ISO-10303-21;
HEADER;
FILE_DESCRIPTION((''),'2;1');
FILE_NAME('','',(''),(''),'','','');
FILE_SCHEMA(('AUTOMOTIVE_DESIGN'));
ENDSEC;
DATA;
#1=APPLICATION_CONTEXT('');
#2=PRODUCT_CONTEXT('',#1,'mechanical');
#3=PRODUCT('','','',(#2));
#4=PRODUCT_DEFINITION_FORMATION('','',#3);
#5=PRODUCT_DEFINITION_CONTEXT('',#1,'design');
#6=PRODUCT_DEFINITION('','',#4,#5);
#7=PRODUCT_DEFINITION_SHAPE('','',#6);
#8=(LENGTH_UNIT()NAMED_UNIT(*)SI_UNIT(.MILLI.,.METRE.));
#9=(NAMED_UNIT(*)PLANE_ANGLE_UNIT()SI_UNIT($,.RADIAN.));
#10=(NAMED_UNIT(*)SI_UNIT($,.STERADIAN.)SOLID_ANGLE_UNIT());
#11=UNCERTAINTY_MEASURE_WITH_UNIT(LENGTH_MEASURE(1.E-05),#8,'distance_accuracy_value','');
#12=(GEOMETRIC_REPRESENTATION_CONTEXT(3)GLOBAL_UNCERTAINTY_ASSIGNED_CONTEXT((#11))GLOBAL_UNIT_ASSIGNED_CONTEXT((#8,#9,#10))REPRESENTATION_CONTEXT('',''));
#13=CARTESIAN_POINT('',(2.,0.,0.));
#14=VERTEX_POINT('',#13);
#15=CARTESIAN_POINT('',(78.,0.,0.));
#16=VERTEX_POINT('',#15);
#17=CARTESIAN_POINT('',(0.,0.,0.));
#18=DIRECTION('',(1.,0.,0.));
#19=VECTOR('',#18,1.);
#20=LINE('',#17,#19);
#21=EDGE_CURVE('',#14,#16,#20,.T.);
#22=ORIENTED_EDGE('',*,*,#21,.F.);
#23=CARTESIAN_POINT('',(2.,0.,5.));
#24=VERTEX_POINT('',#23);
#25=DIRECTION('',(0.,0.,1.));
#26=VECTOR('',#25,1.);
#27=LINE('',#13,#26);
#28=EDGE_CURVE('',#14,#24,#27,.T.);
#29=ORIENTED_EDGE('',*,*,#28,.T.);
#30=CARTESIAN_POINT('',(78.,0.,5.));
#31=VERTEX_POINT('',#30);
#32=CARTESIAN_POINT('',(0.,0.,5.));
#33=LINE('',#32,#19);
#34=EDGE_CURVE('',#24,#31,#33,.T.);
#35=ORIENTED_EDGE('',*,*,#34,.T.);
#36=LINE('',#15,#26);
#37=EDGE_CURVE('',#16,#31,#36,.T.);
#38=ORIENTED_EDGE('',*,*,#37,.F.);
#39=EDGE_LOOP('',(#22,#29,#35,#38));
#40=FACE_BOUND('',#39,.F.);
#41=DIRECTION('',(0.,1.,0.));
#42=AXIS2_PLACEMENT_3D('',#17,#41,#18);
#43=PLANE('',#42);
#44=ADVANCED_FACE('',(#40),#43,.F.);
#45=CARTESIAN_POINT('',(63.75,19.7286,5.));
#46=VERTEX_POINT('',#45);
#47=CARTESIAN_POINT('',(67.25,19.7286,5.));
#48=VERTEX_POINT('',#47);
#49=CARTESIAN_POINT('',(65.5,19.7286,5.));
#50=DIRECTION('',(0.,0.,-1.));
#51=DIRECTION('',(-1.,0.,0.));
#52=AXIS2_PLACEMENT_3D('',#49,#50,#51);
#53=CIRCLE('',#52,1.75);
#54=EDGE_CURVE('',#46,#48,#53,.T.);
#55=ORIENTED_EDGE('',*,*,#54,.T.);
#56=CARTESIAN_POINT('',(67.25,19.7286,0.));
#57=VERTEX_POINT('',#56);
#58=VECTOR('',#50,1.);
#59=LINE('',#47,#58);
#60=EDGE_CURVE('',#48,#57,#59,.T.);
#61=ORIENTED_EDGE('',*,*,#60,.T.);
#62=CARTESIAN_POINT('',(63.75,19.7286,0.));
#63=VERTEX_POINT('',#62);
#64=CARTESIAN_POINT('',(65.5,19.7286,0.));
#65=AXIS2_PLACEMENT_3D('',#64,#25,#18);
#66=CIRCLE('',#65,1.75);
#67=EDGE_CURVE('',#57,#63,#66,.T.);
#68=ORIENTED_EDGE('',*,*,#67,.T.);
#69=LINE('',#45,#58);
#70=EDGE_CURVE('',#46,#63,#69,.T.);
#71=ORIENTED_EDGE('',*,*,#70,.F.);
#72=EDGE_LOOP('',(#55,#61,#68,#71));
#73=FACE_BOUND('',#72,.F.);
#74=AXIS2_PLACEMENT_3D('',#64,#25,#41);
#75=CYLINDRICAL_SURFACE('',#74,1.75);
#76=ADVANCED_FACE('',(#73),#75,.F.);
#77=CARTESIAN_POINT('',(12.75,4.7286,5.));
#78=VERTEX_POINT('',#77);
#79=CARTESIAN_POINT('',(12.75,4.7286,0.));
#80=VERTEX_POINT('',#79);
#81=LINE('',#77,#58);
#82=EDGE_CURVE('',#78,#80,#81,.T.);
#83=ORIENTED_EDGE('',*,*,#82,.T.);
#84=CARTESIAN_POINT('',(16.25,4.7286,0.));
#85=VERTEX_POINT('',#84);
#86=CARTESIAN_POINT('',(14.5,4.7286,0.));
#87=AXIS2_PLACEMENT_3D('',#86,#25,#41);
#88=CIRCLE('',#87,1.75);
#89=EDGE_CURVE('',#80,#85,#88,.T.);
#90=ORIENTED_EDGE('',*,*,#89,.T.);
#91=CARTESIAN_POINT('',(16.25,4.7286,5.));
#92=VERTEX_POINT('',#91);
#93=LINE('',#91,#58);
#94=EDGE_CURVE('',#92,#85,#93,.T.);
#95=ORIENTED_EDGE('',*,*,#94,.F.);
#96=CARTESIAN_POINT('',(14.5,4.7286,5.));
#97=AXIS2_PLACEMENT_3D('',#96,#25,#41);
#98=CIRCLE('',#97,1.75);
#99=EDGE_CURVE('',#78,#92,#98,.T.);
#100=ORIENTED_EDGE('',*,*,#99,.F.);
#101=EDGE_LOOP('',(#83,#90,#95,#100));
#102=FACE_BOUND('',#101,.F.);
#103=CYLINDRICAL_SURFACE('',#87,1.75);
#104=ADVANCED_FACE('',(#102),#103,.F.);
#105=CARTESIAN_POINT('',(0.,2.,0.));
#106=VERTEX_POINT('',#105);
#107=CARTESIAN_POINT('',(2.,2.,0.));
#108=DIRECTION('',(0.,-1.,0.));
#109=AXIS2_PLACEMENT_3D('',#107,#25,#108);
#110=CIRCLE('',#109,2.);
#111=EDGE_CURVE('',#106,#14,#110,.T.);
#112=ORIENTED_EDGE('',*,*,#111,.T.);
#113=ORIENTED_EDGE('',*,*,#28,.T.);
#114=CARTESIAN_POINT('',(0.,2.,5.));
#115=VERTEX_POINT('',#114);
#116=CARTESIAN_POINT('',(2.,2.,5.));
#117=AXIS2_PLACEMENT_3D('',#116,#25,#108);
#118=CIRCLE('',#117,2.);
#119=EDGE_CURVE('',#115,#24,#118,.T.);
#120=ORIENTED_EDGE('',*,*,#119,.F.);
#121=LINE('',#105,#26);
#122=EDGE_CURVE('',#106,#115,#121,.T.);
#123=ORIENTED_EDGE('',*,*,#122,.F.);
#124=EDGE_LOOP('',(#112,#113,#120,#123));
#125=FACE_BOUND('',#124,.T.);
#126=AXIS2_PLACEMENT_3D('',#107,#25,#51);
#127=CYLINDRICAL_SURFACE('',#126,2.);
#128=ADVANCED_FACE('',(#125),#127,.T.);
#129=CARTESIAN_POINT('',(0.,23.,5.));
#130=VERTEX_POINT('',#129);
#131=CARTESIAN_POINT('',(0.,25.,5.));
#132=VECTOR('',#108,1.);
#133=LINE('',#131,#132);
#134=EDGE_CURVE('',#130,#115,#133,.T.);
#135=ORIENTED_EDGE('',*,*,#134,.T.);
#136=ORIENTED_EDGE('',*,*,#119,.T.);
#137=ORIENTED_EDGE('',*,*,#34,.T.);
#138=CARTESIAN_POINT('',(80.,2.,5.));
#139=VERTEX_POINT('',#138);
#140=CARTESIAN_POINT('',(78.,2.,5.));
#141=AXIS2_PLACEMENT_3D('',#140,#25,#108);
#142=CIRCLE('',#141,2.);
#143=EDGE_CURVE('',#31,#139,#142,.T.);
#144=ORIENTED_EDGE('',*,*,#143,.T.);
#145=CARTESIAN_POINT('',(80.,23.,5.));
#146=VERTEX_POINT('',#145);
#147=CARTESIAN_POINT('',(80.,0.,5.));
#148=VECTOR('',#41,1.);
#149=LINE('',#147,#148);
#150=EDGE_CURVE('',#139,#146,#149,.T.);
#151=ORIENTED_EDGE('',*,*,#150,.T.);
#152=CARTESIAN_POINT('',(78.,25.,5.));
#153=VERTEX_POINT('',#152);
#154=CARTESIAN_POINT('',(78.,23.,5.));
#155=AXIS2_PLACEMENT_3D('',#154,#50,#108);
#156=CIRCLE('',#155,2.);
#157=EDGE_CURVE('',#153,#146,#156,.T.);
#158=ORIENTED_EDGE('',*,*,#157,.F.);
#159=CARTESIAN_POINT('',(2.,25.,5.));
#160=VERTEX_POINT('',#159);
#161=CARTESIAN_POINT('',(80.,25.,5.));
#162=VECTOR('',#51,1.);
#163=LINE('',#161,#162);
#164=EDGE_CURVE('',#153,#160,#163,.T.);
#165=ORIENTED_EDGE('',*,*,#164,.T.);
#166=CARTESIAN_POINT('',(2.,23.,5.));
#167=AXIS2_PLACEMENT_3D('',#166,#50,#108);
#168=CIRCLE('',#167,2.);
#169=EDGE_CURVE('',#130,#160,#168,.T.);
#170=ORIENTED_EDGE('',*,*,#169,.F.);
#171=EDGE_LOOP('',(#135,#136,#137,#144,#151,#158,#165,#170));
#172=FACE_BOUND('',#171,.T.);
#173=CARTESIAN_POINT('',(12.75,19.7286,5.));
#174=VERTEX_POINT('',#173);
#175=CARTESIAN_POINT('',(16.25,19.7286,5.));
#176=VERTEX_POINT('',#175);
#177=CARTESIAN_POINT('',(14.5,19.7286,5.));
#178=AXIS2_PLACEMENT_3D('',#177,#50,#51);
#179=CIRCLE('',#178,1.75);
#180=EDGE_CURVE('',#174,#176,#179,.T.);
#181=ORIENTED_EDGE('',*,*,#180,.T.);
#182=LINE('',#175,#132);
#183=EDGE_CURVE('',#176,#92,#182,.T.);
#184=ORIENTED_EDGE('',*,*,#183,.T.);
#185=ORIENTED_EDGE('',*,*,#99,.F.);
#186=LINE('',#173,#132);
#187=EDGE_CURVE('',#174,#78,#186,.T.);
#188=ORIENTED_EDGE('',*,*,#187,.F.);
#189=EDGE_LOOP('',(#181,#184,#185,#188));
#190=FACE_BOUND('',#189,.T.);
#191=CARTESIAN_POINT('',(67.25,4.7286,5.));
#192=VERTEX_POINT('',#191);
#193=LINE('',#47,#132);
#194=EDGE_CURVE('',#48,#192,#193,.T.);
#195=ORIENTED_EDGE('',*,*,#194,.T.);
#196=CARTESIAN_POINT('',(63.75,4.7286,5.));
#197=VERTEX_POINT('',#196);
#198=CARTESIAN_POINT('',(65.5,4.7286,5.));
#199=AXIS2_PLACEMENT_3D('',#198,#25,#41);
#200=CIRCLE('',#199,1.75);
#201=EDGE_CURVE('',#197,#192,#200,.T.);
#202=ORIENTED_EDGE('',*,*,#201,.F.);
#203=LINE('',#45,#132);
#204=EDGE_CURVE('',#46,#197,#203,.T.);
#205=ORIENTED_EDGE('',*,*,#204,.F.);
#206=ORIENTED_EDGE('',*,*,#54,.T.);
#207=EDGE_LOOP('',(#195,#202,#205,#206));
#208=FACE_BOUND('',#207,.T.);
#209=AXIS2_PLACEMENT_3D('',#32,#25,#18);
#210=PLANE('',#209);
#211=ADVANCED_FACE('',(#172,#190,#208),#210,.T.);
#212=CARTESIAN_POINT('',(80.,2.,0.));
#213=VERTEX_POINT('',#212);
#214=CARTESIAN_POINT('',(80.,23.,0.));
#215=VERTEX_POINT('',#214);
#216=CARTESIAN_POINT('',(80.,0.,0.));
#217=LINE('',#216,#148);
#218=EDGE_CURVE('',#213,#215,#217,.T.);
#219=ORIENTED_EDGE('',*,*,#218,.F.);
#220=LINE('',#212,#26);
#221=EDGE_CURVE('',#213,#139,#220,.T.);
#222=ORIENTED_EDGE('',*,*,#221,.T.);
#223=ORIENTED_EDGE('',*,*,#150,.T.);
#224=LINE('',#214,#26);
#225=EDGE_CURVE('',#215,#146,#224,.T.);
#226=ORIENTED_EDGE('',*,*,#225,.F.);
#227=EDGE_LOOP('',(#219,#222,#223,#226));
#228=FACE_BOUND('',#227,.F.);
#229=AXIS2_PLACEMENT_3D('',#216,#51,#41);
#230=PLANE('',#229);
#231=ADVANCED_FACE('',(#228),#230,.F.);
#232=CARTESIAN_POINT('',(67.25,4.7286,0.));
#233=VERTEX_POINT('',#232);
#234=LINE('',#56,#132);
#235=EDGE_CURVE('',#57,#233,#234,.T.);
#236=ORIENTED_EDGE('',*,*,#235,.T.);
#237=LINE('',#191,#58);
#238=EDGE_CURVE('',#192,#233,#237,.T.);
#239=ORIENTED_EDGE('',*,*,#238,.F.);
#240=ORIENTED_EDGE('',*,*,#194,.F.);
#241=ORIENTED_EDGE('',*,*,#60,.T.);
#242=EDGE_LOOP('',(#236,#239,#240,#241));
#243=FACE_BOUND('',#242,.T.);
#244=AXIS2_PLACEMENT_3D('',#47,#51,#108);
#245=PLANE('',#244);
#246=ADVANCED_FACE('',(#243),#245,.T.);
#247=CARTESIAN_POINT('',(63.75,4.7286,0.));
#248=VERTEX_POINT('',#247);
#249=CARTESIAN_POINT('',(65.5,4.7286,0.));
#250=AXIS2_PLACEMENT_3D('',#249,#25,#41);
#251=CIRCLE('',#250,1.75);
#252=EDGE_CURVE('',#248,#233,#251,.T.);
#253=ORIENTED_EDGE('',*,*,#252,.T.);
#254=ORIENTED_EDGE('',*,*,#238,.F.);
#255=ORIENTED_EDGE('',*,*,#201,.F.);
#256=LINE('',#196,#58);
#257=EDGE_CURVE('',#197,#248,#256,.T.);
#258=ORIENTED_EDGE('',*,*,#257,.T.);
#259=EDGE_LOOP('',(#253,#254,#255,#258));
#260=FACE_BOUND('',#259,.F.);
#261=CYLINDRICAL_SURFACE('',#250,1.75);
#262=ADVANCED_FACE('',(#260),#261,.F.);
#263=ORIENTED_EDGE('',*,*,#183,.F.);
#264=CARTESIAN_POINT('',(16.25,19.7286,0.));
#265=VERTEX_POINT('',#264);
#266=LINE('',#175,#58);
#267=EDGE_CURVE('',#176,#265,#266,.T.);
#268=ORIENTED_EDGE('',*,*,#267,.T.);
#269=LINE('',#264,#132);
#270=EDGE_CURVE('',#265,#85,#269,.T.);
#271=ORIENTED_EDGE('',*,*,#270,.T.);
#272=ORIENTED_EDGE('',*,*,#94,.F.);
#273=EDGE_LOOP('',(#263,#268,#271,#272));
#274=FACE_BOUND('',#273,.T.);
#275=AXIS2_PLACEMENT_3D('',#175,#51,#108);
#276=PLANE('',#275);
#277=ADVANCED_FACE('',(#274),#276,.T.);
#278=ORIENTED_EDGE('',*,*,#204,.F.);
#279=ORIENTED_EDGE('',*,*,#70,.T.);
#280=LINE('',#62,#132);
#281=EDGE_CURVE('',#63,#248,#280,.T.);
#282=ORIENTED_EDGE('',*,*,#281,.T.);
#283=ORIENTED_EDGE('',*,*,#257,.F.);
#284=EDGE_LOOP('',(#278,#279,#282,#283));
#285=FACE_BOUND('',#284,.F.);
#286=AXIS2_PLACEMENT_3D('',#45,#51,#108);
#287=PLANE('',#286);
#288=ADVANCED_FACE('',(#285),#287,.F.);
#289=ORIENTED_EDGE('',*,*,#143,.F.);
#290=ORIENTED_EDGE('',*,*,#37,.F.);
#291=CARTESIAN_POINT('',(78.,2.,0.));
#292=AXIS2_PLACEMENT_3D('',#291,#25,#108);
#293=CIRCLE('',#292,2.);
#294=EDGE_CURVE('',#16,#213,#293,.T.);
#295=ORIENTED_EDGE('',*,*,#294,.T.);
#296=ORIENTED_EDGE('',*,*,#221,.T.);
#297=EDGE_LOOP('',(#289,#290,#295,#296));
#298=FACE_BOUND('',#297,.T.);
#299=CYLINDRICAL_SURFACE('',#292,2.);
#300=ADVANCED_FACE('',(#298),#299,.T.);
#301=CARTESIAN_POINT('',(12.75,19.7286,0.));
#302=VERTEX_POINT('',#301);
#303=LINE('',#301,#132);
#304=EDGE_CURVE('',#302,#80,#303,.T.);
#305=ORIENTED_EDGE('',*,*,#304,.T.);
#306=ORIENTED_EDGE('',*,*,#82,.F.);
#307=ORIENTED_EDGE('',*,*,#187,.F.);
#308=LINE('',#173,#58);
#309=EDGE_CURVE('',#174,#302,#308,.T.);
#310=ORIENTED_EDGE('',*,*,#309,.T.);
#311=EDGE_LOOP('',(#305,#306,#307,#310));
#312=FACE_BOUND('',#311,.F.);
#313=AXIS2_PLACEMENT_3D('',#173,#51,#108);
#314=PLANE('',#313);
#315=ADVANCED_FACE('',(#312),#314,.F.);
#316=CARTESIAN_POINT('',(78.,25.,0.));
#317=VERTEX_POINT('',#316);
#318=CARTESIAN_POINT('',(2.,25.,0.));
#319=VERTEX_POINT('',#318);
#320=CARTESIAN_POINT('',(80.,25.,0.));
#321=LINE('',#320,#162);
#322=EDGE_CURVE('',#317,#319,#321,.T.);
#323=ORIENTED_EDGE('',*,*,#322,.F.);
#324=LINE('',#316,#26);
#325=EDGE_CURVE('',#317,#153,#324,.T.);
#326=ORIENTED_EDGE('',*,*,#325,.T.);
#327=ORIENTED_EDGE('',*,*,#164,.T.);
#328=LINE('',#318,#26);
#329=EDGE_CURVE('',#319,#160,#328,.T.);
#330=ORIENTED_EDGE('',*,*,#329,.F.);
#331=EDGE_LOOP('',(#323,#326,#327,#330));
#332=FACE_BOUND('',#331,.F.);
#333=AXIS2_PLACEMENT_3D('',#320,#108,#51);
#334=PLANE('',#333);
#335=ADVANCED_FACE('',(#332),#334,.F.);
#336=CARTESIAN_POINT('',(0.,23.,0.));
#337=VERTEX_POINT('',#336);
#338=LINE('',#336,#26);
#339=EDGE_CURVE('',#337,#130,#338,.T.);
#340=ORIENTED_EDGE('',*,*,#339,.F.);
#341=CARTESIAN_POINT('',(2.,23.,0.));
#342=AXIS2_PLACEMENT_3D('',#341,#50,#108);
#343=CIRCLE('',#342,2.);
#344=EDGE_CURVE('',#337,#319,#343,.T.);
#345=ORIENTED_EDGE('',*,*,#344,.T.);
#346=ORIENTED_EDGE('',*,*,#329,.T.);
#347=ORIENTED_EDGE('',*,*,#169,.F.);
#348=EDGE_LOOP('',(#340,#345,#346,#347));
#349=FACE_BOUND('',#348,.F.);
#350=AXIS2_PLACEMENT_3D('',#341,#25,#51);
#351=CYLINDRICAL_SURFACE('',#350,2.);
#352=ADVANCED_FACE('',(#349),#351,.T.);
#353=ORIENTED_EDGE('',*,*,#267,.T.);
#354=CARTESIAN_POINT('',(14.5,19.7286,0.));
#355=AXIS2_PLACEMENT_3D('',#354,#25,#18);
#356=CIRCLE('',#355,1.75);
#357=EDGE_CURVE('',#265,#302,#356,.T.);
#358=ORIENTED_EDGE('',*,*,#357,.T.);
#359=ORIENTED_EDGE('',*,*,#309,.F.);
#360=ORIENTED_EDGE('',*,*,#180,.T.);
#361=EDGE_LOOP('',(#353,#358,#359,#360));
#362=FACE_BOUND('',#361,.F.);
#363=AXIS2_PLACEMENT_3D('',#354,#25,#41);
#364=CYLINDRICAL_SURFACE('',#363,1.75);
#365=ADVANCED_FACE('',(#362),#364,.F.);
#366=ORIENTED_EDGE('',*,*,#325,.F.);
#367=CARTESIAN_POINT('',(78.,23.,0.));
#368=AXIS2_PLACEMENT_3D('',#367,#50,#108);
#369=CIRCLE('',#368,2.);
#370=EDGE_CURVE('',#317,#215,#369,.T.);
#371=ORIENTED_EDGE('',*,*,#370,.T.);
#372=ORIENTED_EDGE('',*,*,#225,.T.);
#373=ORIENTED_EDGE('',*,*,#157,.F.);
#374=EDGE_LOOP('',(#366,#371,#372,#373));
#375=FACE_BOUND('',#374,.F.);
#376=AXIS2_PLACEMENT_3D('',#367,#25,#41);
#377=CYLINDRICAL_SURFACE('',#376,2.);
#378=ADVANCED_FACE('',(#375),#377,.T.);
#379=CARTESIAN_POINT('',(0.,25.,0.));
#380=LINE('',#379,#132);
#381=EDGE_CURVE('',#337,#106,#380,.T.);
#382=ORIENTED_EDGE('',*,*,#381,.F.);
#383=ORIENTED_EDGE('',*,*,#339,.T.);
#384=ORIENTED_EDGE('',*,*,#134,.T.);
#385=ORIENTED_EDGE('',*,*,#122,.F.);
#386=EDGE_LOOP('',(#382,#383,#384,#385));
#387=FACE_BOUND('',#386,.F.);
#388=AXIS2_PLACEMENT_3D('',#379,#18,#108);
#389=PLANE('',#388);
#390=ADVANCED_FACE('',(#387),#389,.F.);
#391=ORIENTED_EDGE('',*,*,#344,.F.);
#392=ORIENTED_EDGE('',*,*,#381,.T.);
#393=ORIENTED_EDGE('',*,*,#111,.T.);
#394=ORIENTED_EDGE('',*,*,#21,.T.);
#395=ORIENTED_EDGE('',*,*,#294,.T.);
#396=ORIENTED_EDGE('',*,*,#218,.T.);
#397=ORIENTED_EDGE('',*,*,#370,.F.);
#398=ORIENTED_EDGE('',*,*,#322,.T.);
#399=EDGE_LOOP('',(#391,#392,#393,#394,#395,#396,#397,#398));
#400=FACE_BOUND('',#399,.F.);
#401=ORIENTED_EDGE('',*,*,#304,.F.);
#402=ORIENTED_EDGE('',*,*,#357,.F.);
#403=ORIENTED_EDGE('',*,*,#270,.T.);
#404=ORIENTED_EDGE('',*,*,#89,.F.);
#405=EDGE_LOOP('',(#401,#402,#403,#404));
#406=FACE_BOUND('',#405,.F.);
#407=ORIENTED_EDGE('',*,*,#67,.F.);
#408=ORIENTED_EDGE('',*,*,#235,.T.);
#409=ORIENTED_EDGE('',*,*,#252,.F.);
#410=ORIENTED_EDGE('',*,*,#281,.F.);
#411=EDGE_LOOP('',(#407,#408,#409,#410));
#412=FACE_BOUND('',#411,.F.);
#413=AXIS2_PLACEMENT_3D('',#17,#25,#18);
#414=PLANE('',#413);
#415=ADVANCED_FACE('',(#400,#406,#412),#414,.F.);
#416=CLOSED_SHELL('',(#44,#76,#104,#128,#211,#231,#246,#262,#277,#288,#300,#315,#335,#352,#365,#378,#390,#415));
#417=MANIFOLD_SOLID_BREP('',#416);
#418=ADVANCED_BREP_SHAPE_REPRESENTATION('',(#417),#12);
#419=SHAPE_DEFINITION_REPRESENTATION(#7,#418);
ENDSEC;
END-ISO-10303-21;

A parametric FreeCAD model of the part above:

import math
import FreeCAD as App
import Part
import Sketcher

V = App.Vector
Q = App.Units.Quantity


def edges_at(feature, points):
    """Names of the edges that pass closest to the given points."""
    edges = feature.Shape.Edges
    near = lambda p: min(range(len(edges)), key=lambda i: edges[i].distToShape(Part.Vertex(*p))[0])
    return sorted({f"Edge{near(p) + 1}" for p in points})


def add_polygon(sketch, points):
    """Adds a closed chain of lines whose ends are joined by coincident constraints."""
    first, n = sketch.GeometryCount, len(points)
    for a, b in zip(points, points[1:] + points[:1]):
        sketch.addGeometry(Part.LineSegment(App.Vector(*a, 0), App.Vector(*b, 0)), False)
    for i in range(n):
        sketch.addConstraint(Sketcher.Constraint("Coincident", first + i, 2, first + (i + 1) % n, 1))

doc = App.newDocument("Part")
params = doc.addObject("Spreadsheet::Sheet", "Params")
for row, (alias, value) in enumerate([
    ("sketch1_width", "80 mm"),
    ("sketch1_height", "25 mm"),
    ("pad1_length", "5 mm"),
    ("sketch2_diameter", "3.5 mm"),
    ("hole_diameter", "3.5 mm"),
    ("sketch3_height", "15 mm"),
    ("sketch3_radius", "1.75 mm"),
    ("pocket1_length", "5 mm"),
    ("fillet_radius", "2 mm"),
], start=1):
    params.set(f"A{row}", alias)
    params.set(f"B{row}", "=" + value)
    params.setAlias(f"B{row}", alias)

body = doc.addObject("PartDesign::Body", "Body")

# Sketch on XY plane
sketch1 = doc.addObject("Sketcher::SketchObject", "Sketch")
body.addObject(sketch1)
sketch1.AttachmentSupport = (doc.XY_Plane, [""])
sketch1.MapMode = "FlatFace"
add_polygon(sketch1, [(0, 25), (0, 0), (80, 0), (80, 25)])  # lines 0-3
sketch1.addConstraint([
    Sketcher.Constraint("Vertical", 0),
    Sketcher.Constraint("Horizontal", 1),
    Sketcher.Constraint("Vertical", 2),
    Sketcher.Constraint("Horizontal", 3),
    Sketcher.Constraint("Coincident", 0, 2, -1, 1),
    Sketcher.Constraint("DistanceX", 1, 1, 1, 2, Q("80 mm")),
    Sketcher.Constraint("DistanceY", 0, 2, 0, 1, Q("25 mm")),
])
sketch1.setExpression("Constraints[9]", "Params.sketch1_width")
sketch1.setExpression("Constraints[10]", "Params.sketch1_height")
pad1 = doc.addObject("PartDesign::Pad", "Pad")
body.addObject(pad1)
pad1.Profile = sketch1
pad1.setExpression("Length", "Params.pad1_length")

# Sketch on XY plane
sketch2 = doc.addObject("Sketcher::SketchObject", "Sketch001")
body.addObject(sketch2)
sketch2.AttachmentSupport = (doc.XY_Plane, [""])
sketch2.MapMode = "FlatFace"
sketch2.addGeometry([
    Part.Circle(V(14.5, 19.7286, 0), V(0, 0, 1), 1.75),
    Part.Circle(V(14.5, 4.7286, 0), V(0, 0, 1), 1.75),
    Part.Circle(V(65.5, 19.7286, 0), V(0, 0, 1), 1.75),
    Part.Circle(V(65.5, 4.7286, 0), V(0, 0, 1), 1.75),
], False)
sketch2.addConstraint([
    Sketcher.Constraint("Equal", 0, 1),
    Sketcher.Constraint("Equal", 1, 2),
    Sketcher.Constraint("Equal", 2, 3),
    Sketcher.Constraint("Horizontal", 0, 3, 2, 3),
    Sketcher.Constraint("Horizontal", 1, 3, 3, 3),
    Sketcher.Constraint("Vertical", 0, 3, 1, 3),
    Sketcher.Constraint("Vertical", 2, 3, 3, 3),
    Sketcher.Constraint("Diameter", 0, Q("3.5 mm")),
    Sketcher.Constraint("DistanceY", 1, 3, 0, 3, Q("15 mm")),
    Sketcher.Constraint("DistanceX", 0, 3, 2, 3, Q("51 mm")),
    Sketcher.Constraint("DistanceX", -1, 1, 0, 3, Q("14.5 mm")),
    Sketcher.Constraint("DistanceY", -1, 1, 0, 3, Q("19.7286 mm")),
])
sketch2.setExpression("Constraints[7]", "Params.sketch2_diameter")
doc.recompute()
hole = doc.addObject("PartDesign::Hole", "Hole")
body.addObject(hole)
hole.Profile = sketch2
hole.ThreadType = "None"
hole.setExpression("Diameter", "Params.hole_diameter")
hole.DepthType = "ThroughAll"
hole.Reversed = True

# Sketch on XY plane
sketch3 = doc.addObject("Sketcher::SketchObject", "Sketch002")
body.addObject(sketch3)
sketch3.AttachmentSupport = (doc.XY_Plane, [""])
sketch3.MapMode = "FlatFace"
sketch3.AttachmentOffset = App.Placement(V(0, 0, 5), App.Rotation())
sketch3.addGeometry([
    Part.LineSegment(V(16.25, 4.7286, 0), V(16.25, 19.7286, 0)),  # 0
    Part.ArcOfCircle(Part.Circle(V(14.5, 19.7286, 0), V(0, 0, 1), 1.75), math.radians(180), math.radians(360)),  # 1
    Part.LineSegment(V(12.75, 19.7286, 0), V(12.75, 4.7286, 0)),  # 2
    Part.ArcOfCircle(Part.Circle(V(14.5, 4.7286, 0), V(0, 0, 1), 1.75), math.radians(0), math.radians(180)),  # 3
    Part.LineSegment(V(67.25, 4.7286, 0), V(67.25, 19.7286, 0)),  # 4
    Part.ArcOfCircle(Part.Circle(V(65.5, 19.7286, 0), V(0, 0, 1), 1.75), math.radians(180), math.radians(360)),  # 5
    Part.LineSegment(V(63.75, 19.7286, 0), V(63.75, 4.7286, 0)),  # 6
    Part.ArcOfCircle(Part.Circle(V(65.5, 4.7286, 0), V(0, 0, 1), 1.75), math.radians(0), math.radians(180)),  # 7
], False)
sketch3.addConstraint([
    Sketcher.Constraint("Tangent", 0, 2, 1, 2),
    Sketcher.Constraint("Tangent", 1, 1, 2, 1),
    Sketcher.Constraint("Tangent", 2, 2, 3, 2),
    Sketcher.Constraint("Tangent", 3, 1, 0, 1),
    Sketcher.Constraint("Tangent", 4, 2, 5, 2),
    Sketcher.Constraint("Tangent", 5, 1, 6, 1),
    Sketcher.Constraint("Tangent", 6, 2, 7, 2),
    Sketcher.Constraint("Tangent", 7, 1, 4, 1),
    Sketcher.Constraint("Vertical", 0),
    Sketcher.Constraint("Vertical", 2),
    Sketcher.Constraint("Vertical", 4),
    Sketcher.Constraint("Vertical", 6),
    Sketcher.Constraint("Equal", 3, 5),
    Sketcher.Constraint("Horizontal", 1, 3, 5, 3),
    Sketcher.Constraint("Horizontal", 3, 3, 7, 3),
    Sketcher.Constraint("DistanceY", 0, 1, 0, 2, Q("15 mm")),
    Sketcher.Constraint("Radius", 1, Q("1.75 mm")),
    Sketcher.Constraint("DistanceX", 1, 3, 5, 3, Q("51 mm")),
    Sketcher.Constraint("DistanceX", -1, 1, 1, 3, Q("14.5 mm")),
    Sketcher.Constraint("DistanceY", -1, 1, 1, 3, Q("19.7286 mm")),
])
sketch3.setExpression("Constraints[15]", "Params.sketch3_height")
sketch3.setExpression("Constraints[16]", "Params.sketch3_radius")
pocket1 = doc.addObject("PartDesign::Pocket", "Pocket")
body.addObject(pocket1)
pocket1.Profile = sketch3
pocket1.setExpression("Length", "Params.pocket1_length")
doc.recompute()

fillet = doc.addObject("PartDesign::Fillet", "Fillet")
body.addObject(fillet)
fillet.Base = (pocket1, edges_at(pocket1, [
    (80, 25, 2.5),
    (80, 0, 2.5),
    (0, 25, 2.5),
    (0, 0, 2.5),
]))
fillet.setExpression("Radius", "Params.fillet_radius")

doc.recompute()
